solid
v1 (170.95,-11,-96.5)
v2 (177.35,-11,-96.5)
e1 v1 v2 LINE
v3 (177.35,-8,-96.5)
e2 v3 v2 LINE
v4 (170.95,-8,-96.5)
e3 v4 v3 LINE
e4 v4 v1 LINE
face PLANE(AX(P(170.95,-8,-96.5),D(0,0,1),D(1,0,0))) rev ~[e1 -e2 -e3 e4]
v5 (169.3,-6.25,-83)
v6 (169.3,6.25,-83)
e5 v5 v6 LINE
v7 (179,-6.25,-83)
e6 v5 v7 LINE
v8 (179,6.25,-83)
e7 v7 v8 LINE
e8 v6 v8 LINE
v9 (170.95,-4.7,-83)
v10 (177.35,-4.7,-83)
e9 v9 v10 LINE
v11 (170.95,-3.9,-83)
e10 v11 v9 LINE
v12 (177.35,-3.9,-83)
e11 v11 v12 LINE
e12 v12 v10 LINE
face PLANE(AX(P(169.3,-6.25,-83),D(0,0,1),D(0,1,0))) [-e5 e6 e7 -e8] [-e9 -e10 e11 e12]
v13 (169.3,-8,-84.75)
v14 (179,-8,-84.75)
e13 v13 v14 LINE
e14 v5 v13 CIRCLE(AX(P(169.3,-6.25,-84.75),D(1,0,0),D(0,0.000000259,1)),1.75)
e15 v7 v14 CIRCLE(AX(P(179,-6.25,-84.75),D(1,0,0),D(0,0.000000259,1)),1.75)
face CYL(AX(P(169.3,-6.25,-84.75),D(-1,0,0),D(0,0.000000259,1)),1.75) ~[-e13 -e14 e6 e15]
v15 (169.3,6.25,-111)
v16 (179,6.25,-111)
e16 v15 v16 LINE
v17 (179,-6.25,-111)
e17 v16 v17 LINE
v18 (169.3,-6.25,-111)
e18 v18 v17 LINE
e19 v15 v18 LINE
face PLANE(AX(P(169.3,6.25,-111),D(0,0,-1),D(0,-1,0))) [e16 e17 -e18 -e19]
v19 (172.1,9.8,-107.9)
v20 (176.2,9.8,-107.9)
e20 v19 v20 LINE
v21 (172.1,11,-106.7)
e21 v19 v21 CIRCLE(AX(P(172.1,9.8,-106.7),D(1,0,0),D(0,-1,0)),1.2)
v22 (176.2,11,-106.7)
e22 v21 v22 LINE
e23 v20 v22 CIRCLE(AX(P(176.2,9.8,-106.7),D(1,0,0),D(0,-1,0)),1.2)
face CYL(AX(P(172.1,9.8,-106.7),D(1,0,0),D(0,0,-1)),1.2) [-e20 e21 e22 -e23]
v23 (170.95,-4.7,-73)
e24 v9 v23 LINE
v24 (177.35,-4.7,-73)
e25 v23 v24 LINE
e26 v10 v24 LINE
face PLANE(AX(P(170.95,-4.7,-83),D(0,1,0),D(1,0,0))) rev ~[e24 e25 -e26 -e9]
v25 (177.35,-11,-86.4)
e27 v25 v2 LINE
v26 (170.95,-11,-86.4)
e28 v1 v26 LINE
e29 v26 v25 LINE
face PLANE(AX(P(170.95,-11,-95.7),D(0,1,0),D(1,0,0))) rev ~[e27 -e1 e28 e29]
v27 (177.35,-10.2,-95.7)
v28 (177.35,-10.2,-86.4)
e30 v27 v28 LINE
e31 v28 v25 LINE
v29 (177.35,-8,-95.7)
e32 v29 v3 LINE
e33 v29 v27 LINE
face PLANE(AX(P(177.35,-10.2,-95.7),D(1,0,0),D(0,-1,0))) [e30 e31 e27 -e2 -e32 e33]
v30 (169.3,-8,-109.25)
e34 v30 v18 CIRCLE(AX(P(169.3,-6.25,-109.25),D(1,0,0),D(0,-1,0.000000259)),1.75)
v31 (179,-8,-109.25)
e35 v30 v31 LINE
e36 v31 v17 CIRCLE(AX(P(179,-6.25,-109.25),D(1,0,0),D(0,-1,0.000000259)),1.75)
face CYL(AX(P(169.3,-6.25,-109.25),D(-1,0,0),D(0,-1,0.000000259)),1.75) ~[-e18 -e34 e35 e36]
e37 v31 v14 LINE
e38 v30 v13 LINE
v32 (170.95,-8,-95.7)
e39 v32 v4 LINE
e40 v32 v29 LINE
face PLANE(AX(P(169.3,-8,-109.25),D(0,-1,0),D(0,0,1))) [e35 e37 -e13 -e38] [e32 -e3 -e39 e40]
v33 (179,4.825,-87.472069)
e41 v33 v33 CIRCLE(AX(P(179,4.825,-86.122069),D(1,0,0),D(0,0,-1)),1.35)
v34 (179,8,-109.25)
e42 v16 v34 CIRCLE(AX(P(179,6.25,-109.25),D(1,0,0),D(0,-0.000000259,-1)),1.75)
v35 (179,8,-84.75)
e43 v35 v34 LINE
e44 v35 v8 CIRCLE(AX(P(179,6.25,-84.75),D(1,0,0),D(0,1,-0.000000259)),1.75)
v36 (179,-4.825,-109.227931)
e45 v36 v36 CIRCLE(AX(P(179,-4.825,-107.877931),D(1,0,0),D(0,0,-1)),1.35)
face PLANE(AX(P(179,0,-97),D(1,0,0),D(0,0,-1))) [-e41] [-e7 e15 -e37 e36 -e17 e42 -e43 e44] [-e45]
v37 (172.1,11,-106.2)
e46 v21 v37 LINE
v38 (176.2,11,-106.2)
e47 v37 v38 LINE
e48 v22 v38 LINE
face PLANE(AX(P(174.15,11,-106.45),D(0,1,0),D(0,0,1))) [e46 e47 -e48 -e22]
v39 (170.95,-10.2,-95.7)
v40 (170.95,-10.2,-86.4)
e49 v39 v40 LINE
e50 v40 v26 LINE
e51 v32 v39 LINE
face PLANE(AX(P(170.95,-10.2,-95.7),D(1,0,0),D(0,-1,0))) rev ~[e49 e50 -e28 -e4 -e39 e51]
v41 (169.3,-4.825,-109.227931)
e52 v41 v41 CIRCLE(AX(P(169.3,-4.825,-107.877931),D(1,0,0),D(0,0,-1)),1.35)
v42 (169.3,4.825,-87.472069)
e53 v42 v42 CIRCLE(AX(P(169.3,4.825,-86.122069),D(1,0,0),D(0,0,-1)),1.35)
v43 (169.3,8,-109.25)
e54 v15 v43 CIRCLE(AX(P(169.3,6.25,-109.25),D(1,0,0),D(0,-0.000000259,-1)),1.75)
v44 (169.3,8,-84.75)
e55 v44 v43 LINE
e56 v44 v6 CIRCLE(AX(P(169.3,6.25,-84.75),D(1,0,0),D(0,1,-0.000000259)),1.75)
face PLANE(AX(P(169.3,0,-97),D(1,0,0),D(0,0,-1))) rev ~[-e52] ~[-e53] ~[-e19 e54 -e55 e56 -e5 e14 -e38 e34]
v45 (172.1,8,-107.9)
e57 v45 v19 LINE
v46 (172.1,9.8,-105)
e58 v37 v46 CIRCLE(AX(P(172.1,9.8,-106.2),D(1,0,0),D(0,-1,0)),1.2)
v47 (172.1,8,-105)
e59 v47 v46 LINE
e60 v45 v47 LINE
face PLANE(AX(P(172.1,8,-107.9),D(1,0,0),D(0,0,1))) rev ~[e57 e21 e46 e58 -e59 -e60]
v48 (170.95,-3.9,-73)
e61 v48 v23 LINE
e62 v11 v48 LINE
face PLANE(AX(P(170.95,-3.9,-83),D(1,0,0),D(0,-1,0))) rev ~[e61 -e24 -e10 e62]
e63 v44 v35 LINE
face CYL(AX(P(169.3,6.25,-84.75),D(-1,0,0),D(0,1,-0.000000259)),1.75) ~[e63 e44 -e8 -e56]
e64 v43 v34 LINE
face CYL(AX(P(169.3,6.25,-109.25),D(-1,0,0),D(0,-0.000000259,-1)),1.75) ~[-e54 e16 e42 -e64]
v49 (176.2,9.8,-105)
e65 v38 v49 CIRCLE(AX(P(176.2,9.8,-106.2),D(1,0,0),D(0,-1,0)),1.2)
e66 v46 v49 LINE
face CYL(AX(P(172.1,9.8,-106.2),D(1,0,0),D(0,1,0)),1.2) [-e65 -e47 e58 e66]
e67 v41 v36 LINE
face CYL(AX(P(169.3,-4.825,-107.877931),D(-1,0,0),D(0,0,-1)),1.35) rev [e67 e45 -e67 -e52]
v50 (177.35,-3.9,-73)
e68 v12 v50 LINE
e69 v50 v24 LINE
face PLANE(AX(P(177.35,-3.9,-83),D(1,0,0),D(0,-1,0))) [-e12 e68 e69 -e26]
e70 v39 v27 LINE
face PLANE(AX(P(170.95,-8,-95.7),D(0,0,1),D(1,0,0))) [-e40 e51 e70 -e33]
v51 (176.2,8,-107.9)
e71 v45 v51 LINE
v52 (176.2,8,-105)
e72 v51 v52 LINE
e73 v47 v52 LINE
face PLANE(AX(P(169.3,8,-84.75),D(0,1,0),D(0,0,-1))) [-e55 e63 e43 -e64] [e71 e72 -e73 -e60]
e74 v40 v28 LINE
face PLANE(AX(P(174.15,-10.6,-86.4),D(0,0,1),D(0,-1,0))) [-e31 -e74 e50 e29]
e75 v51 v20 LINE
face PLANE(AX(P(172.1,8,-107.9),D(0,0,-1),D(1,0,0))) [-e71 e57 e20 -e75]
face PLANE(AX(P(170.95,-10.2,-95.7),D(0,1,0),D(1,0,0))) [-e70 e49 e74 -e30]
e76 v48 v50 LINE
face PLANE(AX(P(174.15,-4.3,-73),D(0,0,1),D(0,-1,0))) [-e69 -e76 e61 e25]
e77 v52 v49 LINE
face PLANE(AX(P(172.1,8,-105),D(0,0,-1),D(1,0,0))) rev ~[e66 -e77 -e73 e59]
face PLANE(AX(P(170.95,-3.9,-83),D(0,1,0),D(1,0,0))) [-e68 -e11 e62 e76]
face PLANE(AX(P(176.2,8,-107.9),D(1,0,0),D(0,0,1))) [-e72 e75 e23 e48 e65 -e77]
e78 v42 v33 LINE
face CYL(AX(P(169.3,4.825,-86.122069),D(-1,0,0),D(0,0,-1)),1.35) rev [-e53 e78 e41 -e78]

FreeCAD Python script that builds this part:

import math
import FreeCAD as App
import Part
import Sketcher
from FreeCAD import Vector


def edges_at(feature, points):
    """Names of the edges that pass closest to the given points."""
    edges = feature.Shape.Edges
    near = lambda p: min(range(len(edges)), key=lambda i: edges[i].distToShape(Part.Vertex(*p))[0])
    return sorted({f"Edge{near(p) + 1}" for p in points})

doc = App.newDocument("Part")
body = doc.addObject("PartDesign::Body", "Body")

# Sketch on XY plane
sketch1 = body.newObject("Sketcher::SketchObject", "Sketch")
sketch1.AttachmentSupport = (doc.getObject("XY_Plane"), [""])
sketch1.MapMode = "FlatFace"
sketch1.addGeometry([
    Part.ArcOfCircle(Part.Circle(Vector(-12.25, 6.25, 0), Vector(0, 0, 1), 1.75), math.radians(89.999985), math.radians(180.000015)),  # 0
    Part.LineSegment(Vector(-14, 6.25, 0), Vector(-14, -6.25, 0)),  # 1
    Part.ArcOfCircle(Part.Circle(Vector(-12.25, -6.25, 0), Vector(0, 0, 1), 1.75), math.radians(179.999985), math.radians(270.000015)),  # 2
    Part.LineSegment(Vector(-12.25, -8, 0), Vector(12.25, -8, 0)),  # 3
    Part.ArcOfCircle(Part.Circle(Vector(12.25, -6.25, 0), Vector(0, 0, 1), 1.75), math.radians(-90.000015), math.radians(0.000015)),  # 4
    Part.LineSegment(Vector(14, -6.25, 0), Vector(14, 6.25, 0)),  # 5
    Part.ArcOfCircle(Part.Circle(Vector(12.25, 6.25, 0), Vector(0, 0, 1), 1.75), math.radians(-0.000015), math.radians(90.000015)),  # 6
    Part.LineSegment(Vector(12.25, 8, 0), Vector(-12.25, 8, 0)),  # 7
    Part.Circle(Vector(10.877931, -4.825, 0), Vector(0, 0, 1), 1.35),  # 8
    Part.Circle(Vector(-10.877931, 4.825, 0), Vector(0, 0, 1), 1.35),  # 9
], False)
sketch1.addConstraint([
    Sketcher.Constraint("Tangent", 0, 2, 1, 1),
    Sketcher.Constraint("Tangent", 1, 2, 2, 1),
    Sketcher.Constraint("Tangent", 2, 2, 3, 1),
    Sketcher.Constraint("Tangent", 3, 2, 4, 1),
    Sketcher.Constraint("Tangent", 4, 2, 5, 1),
    Sketcher.Constraint("Tangent", 5, 2, 6, 1),
    Sketcher.Constraint("Tangent", 6, 2, 7, 1),
    Sketcher.Constraint("Tangent", 7, 2, 0, 1),
    Sketcher.Constraint("Vertical", 1),
    Sketcher.Constraint("Horizontal", 3),
    Sketcher.Constraint("Vertical", 5),
    Sketcher.Constraint("Horizontal", 7),
    Sketcher.Constraint("Equal", 0, 2),
    Sketcher.Constraint("Equal", 2, 4),
    Sketcher.Constraint("Equal", 4, 6),
    Sketcher.Constraint("Equal", 8, 9),
    Sketcher.Constraint("Symmetric", 0, 3, 4, 3, -1, 1),
    Sketcher.Constraint("Symmetric", 8, 3, 9, 3, -1, 1),
    Sketcher.Constraint("Diameter", 8, 2.7),
    Sketcher.Constraint("Radius", 0, 1.75),
    Sketcher.Constraint("DistanceX", 3, 1, 3, 2, 24.5),
    Sketcher.Constraint("DistanceY", 1, 2, 1, 1, 12.5),
    Sketcher.Constraint("DistanceY", 8, 3, 9, 3, 9.65),
    Sketcher.Constraint("DistanceX", -1, 1, 8, 3, 10.877931),
])
pad1 = body.newObject("PartDesign::Pad", "Pad")
pad1.Profile = sketch1
pad1.Length = 9.7

# Sketch on XZ plane
sketch2 = body.newObject("Sketcher::SketchObject", "Sketch001")
sketch2.AttachmentSupport = (doc.getObject("XZ_Plane"), [""])
sketch2.MapMode = "FlatFace"
sketch2.AttachmentOffset = App.Placement(Vector(0, 0, -8), App.Rotation())
sketch2.addGeometry([
    Part.LineSegment(Vector(10.9, 6.9, 0), Vector(10.9, 2.8, 0)),
    Part.LineSegment(Vector(10.9, 2.8, 0), Vector(8, 2.8, 0)),
    Part.LineSegment(Vector(8, 2.8, 0), Vector(8, 6.9, 0)),
    Part.LineSegment(Vector(8, 6.9, 0), Vector(10.9, 6.9, 0)),
], False)
sketch2.addConstraint([
    Sketcher.Constraint("Coincident", 0, 2, 1, 1),
    Sketcher.Constraint("Coincident", 1, 2, 2, 1),
    Sketcher.Constraint("Coincident", 2, 2, 3, 1),
    Sketcher.Constraint("Coincident", 3, 2, 0, 1),
    Sketcher.Constraint("Vertical", 0),
    Sketcher.Constraint("Horizontal", 1),
    Sketcher.Constraint("Vertical", 2),
    Sketcher.Constraint("Horizontal", 3),
    Sketcher.Constraint("DistanceX", 1, 2, 1, 1, 2.9),
    Sketcher.Constraint("DistanceY", 0, 2, 0, 1, 4.1),
    Sketcher.Constraint("DistanceX", -1, 1, 1, 2, 8.0),
    Sketcher.Constraint("DistanceY", -1, 1, 0, 2, 2.8),
])
pad2 = body.newObject("PartDesign::Pad", "Pad001")
pad2.Profile = sketch2
pad2.Length = 3
pad2.Reversed = True

# Sketch on YZ plane
sketch3 = body.newObject("Sketcher::SketchObject", "Sketch002")
sketch3.AttachmentSupport = (doc.getObject("YZ_Plane"), [""])
sketch3.MapMode = "FlatFace"
sketch3.AttachmentOffset = App.Placement(Vector(0, 0, -14), App.Rotation())
sketch3.addGeometry([
    Part.LineSegment(Vector(-3.9, 8.05, 0), Vector(-3.9, 1.65, 0)),
    Part.LineSegment(Vector(-3.9, 1.65, 0), Vector(-4.7, 1.65, 0)),
    Part.LineSegment(Vector(-4.7, 1.65, 0), Vector(-4.7, 8.05, 0)),
    Part.LineSegment(Vector(-4.7, 8.05, 0), Vector(-3.9, 8.05, 0)),
], False)
sketch3.addConstraint([
    Sketcher.Constraint("Coincident", 0, 2, 1, 1),
    Sketcher.Constraint("Coincident", 1, 2, 2, 1),
    Sketcher.Constraint("Coincident", 2, 2, 3, 1),
    Sketcher.Constraint("Coincident", 3, 2, 0, 1),
    Sketcher.Constraint("Vertical", 0),
    Sketcher.Constraint("Horizontal", 1),
    Sketcher.Constraint("Vertical", 2),
    Sketcher.Constraint("Horizontal", 3),
    Sketcher.Constraint("DistanceX", 1, 2, 1, 1, 0.8),
    Sketcher.Constraint("DistanceY", 0, 2, 0, 1, 6.4),
    Sketcher.Constraint("DistanceX", 0, 2, -1, 1, 3.9),
    Sketcher.Constraint("DistanceY", -1, 1, 0, 2, 1.65),
])
pad3 = body.newObject("PartDesign::Pad", "Pad002")
pad3.Profile = sketch3
pad3.Length = 10
pad3.Reversed = True

# Sketch on XZ plane
sketch4 = body.newObject("Sketcher::SketchObject", "Sketch003")
sketch4.AttachmentSupport = (doc.getObject("XZ_Plane"), [""])
sketch4.MapMode = "FlatFace"
sketch4.AttachmentOffset = App.Placement(Vector(0, 0, 8), App.Rotation())
sketch4.addGeometry([
    Part.LineSegment(Vector(-1.3, 8.05, 0), Vector(-1.3, 1.65, 0)),
    Part.LineSegment(Vector(-1.3, 1.65, 0), Vector(-0.5, 1.65, 0)),
    Part.LineSegment(Vector(-0.5, 1.65, 0), Vector(-0.5, 8.05, 0)),
    Part.LineSegment(Vector(-0.5, 8.05, 0), Vector(-1.3, 8.05, 0)),
], False)
sketch4.addConstraint([
    Sketcher.Constraint("Coincident", 0, 2, 1, 1),
    Sketcher.Constraint("Coincident", 1, 2, 2, 1),
    Sketcher.Constraint("Coincident", 2, 2, 3, 1),
    Sketcher.Constraint("Coincident", 3, 2, 0, 1),
    Sketcher.Constraint("Vertical", 0),
    Sketcher.Constraint("Horizontal", 1),
    Sketcher.Constraint("Vertical", 2),
    Sketcher.Constraint("Horizontal", 3),
    Sketcher.Constraint("DistanceX", 1, 1, 1, 2, 0.8),
    Sketcher.Constraint("DistanceY", 0, 2, 0, 1, 6.4),
    Sketcher.Constraint("DistanceX", 0, 2, -1, 1, 1.3),
    Sketcher.Constraint("DistanceY", -1, 1, 0, 2, 1.65),
])
pad4 = body.newObject("PartDesign::Pad", "Pad003")
pad4.Profile = sketch4
pad4.Length = 3

# Sketch on YZ plane
sketch5 = body.newObject("Sketcher::SketchObject", "Sketch004")
sketch5.AttachmentSupport = (doc.getObject("YZ_Plane"), [""])
sketch5.MapMode = "FlatFace"
sketch5.AttachmentOffset = App.Placement(Vector(0, 0, -1.3), App.Rotation())
sketch5.addGeometry([
    Part.LineSegment(Vector(-10.2, 8.05, 0), Vector(-10.2, 1.65, 0)),
    Part.LineSegment(Vector(-10.2, 1.65, 0), Vector(-11, 1.65, 0)),
    Part.LineSegment(Vector(-11, 1.65, 0), Vector(-11, 8.05, 0)),
    Part.LineSegment(Vector(-11, 8.05, 0), Vector(-10.2, 8.05, 0)),
], False)
sketch5.addConstraint([
    Sketcher.Constraint("Coincident", 0, 2, 1, 1),
    Sketcher.Constraint("Coincident", 1, 2, 2, 1),
    Sketcher.Constraint("Coincident", 2, 2, 3, 1),
    Sketcher.Constraint("Coincident", 3, 2, 0, 1),
    Sketcher.Constraint("Vertical", 0),
    Sketcher.Constraint("Horizontal", 1),
    Sketcher.Constraint("Vertical", 2),
    Sketcher.Constraint("Horizontal", 3),
    Sketcher.Constraint("DistanceX", 1, 2, 1, 1, 0.8),
    Sketcher.Constraint("DistanceY", 0, 2, 0, 1, 6.4),
    Sketcher.Constraint("DistanceX", 1, 2, -1, 1, 11.0),
    Sketcher.Constraint("DistanceY", -1, 1, 0, 2, 1.65),
])
pad5 = body.newObject("PartDesign::Pad", "Pad004")
pad5.Profile = sketch5
pad5.Length = 9.3
pad5.Reversed = True
doc.recompute()

fillet = body.newObject("PartDesign::Fillet", "Fillet")
fillet.Base = (pad5, edges_at(pad5, [(10.9, 11, 4.85), (8, 11, 4.85)]))
fillet.Radius = 1.2
body2 = doc.addObject("PartDesign::Body", "Body001")
doc.recompute()

body.Placement = App.Placement(Vector(169.3, 0, -97), App.Rotation(Vector(0, 1, 0), 90))
boolean = body2.newObject("PartDesign::Boolean", "Boolean")
boolean.Type = "Fuse"
boolean.addObjects([body])

doc.recompute()
